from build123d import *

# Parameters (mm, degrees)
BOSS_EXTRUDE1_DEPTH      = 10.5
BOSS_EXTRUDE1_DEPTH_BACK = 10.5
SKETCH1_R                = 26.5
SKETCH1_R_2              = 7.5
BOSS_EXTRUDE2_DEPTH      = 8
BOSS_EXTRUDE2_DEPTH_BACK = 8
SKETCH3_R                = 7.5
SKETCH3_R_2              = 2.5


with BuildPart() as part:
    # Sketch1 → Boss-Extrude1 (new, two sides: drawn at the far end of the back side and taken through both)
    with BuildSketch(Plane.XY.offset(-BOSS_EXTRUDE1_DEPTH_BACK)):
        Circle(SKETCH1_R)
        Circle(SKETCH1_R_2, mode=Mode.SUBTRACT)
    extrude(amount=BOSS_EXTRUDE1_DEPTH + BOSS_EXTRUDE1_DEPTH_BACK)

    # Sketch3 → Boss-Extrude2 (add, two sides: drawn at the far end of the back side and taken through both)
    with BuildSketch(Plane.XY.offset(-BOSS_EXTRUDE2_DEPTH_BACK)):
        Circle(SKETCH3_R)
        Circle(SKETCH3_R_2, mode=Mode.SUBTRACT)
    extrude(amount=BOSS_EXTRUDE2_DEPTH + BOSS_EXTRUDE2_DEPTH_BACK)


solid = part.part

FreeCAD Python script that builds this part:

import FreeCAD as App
import Part
import Sketcher

doc = App.newDocument("Part")
body = doc.addObject("PartDesign::Body", "Body")

sketch1 = body.newObject("Sketcher::SketchObject", "Sketch")
sketch1.AttachmentSupport = (doc.getObject("XY_Plane"), [""])
sketch1.MapMode = "FlatFace"
sketch1.addGeometry([
    Part.Circle(App.Vector(0, 0, 0), App.Vector(0, 0, 1), 26),
    Part.Circle(App.Vector(0, 0, 0), App.Vector(0, 0, 1), 8),
], False)
sketch1.addConstraint([
    Sketcher.Constraint("Coincident", 0, 3, -1, 1),
    Sketcher.Constraint("Coincident", 1, 3, -1, 1),
    Sketcher.Constraint("Diameter", 0, 53.0),
    Sketcher.Constraint("Diameter", 1, 15.0),
])
pad1 = body.newObject("PartDesign::Pad", "Pad")
pad1.Profile = sketch1
pad1.Type = "TwoLengths"
pad1.Length = 10.5
pad1.Length2 = 10.5

sketch2 = body.newObject("Sketcher::SketchObject", "Sketch001")
sketch2.AttachmentSupport = (doc.getObject("XY_Plane"), [""])
sketch2.MapMode = "FlatFace"
sketch2.addGeometry([
    Part.Circle(App.Vector(0, 0, 0), App.Vector(0, 0, 1), 7.5),
    Part.Circle(App.Vector(0, 0, 0), App.Vector(0, 0, 1), 2.5),
], False)
sketch2.addConstraint([
    Sketcher.Constraint("Coincident", 0, 3, -1, 1),
    Sketcher.Constraint("Coincident", 1, 3, -1, 1),
    Sketcher.Constraint("Diameter", 0, 15.0),
    Sketcher.Constraint("Diameter", 1, 5.0),
])
pad2 = body.newObject("PartDesign::Pad", "Pad001")
pad2.Profile = sketch2
pad2.Type = "TwoLengths"
pad2.Length = 8
pad2.Length2 = 8

doc.recompute()
